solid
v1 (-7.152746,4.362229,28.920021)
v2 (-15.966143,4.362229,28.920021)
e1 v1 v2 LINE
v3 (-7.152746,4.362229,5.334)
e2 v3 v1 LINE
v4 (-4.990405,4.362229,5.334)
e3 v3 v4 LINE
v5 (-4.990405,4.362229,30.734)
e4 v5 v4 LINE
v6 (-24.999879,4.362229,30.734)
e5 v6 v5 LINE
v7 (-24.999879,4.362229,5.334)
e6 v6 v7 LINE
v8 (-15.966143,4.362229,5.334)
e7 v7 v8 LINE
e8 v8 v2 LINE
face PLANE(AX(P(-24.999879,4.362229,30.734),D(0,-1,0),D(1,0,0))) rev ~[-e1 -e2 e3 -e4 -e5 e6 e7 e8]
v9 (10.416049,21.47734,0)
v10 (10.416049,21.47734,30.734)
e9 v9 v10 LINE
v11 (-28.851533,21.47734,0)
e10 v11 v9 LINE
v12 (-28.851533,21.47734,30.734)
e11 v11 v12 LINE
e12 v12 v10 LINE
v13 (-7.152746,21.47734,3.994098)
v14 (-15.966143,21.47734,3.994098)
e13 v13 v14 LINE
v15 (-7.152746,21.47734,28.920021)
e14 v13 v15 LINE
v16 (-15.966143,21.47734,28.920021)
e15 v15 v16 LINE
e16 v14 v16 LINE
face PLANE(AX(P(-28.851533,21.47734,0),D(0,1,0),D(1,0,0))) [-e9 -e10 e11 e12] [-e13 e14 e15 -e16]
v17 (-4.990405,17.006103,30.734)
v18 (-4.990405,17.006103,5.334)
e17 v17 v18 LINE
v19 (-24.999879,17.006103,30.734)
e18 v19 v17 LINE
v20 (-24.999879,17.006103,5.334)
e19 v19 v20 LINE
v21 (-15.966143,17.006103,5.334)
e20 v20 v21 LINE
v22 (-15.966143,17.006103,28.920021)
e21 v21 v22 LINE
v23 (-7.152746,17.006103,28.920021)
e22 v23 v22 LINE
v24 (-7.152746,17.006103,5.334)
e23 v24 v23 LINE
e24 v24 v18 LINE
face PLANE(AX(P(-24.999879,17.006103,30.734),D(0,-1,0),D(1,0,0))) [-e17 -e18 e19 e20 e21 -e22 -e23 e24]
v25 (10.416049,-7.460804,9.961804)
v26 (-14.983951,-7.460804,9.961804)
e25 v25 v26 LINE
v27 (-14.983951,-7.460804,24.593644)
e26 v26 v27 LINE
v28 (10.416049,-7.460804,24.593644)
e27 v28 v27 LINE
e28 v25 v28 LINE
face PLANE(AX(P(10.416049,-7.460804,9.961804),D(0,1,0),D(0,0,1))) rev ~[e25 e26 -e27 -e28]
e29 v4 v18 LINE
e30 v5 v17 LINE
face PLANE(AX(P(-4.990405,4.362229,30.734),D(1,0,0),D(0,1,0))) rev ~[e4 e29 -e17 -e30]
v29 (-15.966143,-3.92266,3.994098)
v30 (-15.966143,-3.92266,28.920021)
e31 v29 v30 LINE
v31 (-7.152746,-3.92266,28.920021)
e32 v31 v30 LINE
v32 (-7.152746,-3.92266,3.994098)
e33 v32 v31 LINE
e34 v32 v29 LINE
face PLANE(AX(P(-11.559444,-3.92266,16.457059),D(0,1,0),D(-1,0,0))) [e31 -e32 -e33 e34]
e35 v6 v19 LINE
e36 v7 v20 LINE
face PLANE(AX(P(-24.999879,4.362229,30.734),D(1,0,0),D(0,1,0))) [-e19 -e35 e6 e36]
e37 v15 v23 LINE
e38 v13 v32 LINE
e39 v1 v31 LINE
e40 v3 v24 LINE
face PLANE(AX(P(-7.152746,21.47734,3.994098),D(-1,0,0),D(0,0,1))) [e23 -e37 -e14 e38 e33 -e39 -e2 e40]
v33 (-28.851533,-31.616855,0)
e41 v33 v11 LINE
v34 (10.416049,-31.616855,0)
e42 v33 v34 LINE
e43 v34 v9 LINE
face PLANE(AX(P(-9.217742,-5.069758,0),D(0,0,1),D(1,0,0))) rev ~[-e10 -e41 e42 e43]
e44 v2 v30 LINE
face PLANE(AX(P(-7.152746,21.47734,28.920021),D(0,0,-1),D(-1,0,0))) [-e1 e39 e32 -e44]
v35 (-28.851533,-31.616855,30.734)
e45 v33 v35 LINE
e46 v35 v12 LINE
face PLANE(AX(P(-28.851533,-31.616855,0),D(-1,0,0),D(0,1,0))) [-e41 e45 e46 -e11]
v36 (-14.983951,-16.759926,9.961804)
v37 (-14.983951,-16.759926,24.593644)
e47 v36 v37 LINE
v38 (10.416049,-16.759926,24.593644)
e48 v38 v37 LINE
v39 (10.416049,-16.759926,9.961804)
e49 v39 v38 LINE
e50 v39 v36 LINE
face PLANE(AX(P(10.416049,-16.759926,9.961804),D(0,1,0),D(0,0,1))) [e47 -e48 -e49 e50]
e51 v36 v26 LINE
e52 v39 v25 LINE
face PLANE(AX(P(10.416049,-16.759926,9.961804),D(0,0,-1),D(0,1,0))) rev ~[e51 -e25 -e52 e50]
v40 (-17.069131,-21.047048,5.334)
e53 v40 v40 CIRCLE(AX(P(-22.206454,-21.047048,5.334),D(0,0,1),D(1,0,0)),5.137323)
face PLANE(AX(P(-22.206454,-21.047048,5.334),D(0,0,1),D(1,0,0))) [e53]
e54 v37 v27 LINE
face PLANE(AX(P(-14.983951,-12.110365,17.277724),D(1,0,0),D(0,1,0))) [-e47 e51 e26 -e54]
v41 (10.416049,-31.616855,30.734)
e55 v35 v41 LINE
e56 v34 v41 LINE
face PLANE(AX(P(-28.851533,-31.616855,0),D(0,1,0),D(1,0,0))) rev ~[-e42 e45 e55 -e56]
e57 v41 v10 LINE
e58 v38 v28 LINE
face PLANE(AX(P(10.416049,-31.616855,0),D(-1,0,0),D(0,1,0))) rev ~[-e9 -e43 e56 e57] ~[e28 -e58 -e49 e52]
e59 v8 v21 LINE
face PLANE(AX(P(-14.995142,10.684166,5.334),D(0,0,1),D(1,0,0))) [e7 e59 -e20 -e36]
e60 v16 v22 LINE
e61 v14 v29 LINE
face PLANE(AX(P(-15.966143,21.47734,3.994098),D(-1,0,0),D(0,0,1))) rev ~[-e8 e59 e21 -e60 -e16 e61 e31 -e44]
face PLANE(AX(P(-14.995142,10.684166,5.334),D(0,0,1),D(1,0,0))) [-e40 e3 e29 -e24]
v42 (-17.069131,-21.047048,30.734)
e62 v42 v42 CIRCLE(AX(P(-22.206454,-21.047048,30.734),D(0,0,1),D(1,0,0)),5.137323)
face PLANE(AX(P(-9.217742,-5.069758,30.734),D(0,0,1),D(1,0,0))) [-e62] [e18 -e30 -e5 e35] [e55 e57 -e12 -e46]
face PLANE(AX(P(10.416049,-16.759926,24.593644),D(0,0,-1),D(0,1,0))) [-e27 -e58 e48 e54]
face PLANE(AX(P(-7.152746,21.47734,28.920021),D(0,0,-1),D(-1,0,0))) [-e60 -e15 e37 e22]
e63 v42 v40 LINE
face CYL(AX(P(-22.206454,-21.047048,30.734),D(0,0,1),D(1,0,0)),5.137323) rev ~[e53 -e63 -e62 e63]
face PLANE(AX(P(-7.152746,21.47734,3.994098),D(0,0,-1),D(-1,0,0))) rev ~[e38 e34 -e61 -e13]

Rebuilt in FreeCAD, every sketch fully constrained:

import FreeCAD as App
import Part
import Sketcher
Q = App.Units.Quantity

doc = App.newDocument("Part")
body = doc.addObject("PartDesign::Body", "Body")

# Sketch on XY plane
sketch1 = body.newObject("Sketcher::SketchObject", "Sketch")
sketch1.AttachmentSupport = (doc.getObject("XY_Plane"), [""])
sketch1.MapMode = "FlatFace"
sketch1.addGeometry(Part.LineSegment(App.Vector(-29, 21, 0), App.Vector(-29, -32, 0)), False)
sketch1.addGeometry(Part.LineSegment(App.Vector(-29, -32, 0), App.Vector(10, -32, 0)), False)
sketch1.addGeometry(Part.LineSegment(App.Vector(10, -32, 0), App.Vector(10, 21, 0)), False)
sketch1.addGeometry(Part.LineSegment(App.Vector(10, 21, 0), App.Vector(-29, 21, 0)), False)
sketch1.addConstraint(Sketcher.Constraint("Coincident", 0, 2, 1, 1))
sketch1.addConstraint(Sketcher.Constraint("Coincident", 1, 2, 2, 1))
sketch1.addConstraint(Sketcher.Constraint("Coincident", 2, 2, 3, 1))
sketch1.addConstraint(Sketcher.Constraint("Coincident", 3, 2, 0, 1))
sketch1.addConstraint(Sketcher.Constraint("Vertical", 0))
sketch1.addConstraint(Sketcher.Constraint("Horizontal", 1))
sketch1.addConstraint(Sketcher.Constraint("Vertical", 2))
sketch1.addConstraint(Sketcher.Constraint("Horizontal", 3))
sketch1.addConstraint(Sketcher.Constraint("DistanceX", 1, 1, 1, 2, Q("39.267582 mm")))
sketch1.addConstraint(Sketcher.Constraint("DistanceY", 0, 2, 0, 1, Q("53.094195 mm")))
sketch1.addConstraint(Sketcher.Constraint("DistanceX", -1, 1, 1, 2, Q("10.416049 mm")))
sketch1.addConstraint(Sketcher.Constraint("DistanceY", -1, 1, 2, 2, Q("21.47734 mm")))
pad1 = body.newObject("PartDesign::Pad", "Pad")
pad1.Profile = sketch1
pad1.Length = Q("1.21 in")

# Sketch on XZ plane
sketch2 = body.newObject("Sketcher::SketchObject", "Sketch001")
sketch2.AttachmentSupport = (doc.getObject("XZ_Plane"), [""])
sketch2.MapMode = "FlatFace"
sketch2.AttachmentOffset = App.Placement(App.Vector(0, 0, -21.47734), App.Rotation())
sketch2.addGeometry(Part.Circle(App.Vector(0, 22, 0), App.Vector(0, 0, 1), 6), False)
sketch2.addConstraint(Sketcher.Constraint("PointOnObject", 0, 3, -2))
sketch2.addConstraint(Sketcher.Constraint("Diameter", 0, Q("11.806739 mm")))
sketch2.addConstraint(Sketcher.Constraint("DistanceY", -1, 1, 0, 3, Q("21.755928 mm")))
pad2 = body.newObject("PartDesign::Pad", "Pad001")
pad2.Profile = sketch2
pad2.Length = Q("1.36 in")

# Sketch on XZ plane
sketch3 = body.newObject("Sketcher::SketchObject", "Sketch002")
sketch3.AttachmentSupport = (doc.getObject("XZ_Plane"), [""])
sketch3.MapMode = "FlatFace"
sketch3.AttachmentOffset = App.Placement(App.Vector(0, 0, -21.47734), App.Rotation())
sketch3.addGeometry(Part.Circle(App.Vector(0, 18, 0), App.Vector(0, 0, 1), 7), False)
sketch3.addConstraint(Sketcher.Constraint("PointOnObject", 0, 3, -2))
sketch3.addConstraint(Sketcher.Constraint("Diameter", 0, Q("13.873313 mm")))
sketch3.addConstraint(Sketcher.Constraint("DistanceY", -1, 1, 0, 3, Q("17.772553 mm")))
pad3 = body.newObject("PartDesign::Pad", "Pad002")
pad3.Profile = sketch3
pad3.Length = Q("1.15 in")

# Sketch on XY plane
sketch4 = body.newObject("Sketcher::SketchObject", "Sketch003")
sketch4.AttachmentSupport = (doc.getObject("XY_Plane"), [""])
sketch4.MapMode = "FlatFace"
sketch4.AttachmentOffset = App.Placement(App.Vector(0, 0, 1.21 * 25.4), App.Rotation())
sketch4.addGeometry(Part.Circle(App.Vector(-22, -21, 0), App.Vector(0, 0, 1), 5), False)
sketch4.addConstraint(Sketcher.Constraint("Diameter", 0, Q("10.274645 mm")))
sketch4.addConstraint(Sketcher.Constraint("DistanceY", 0, 3, -1, 1, Q("21.047048 mm")))
sketch4.addConstraint(Sketcher.Constraint("DistanceX", 0, 3, -1, 1, Q("22.206454 mm")))
pocket1 = body.newObject("PartDesign::Pocket", "Pocket")
pocket1.Profile = sketch4
pocket1.Length = Q("1 in")

# Sketch on YZ plane
sketch5 = body.newObject("Sketcher::SketchObject", "Sketch004")
sketch5.AttachmentSupport = (doc.getObject("YZ_Plane"), [""])
sketch5.MapMode = "FlatFace"
sketch5.AttachmentOffset = App.Placement(App.Vector(0, 0, 10.416049), App.Rotation())
sketch5.addGeometry(Part.LineSegment(App.Vector(-17, 25, 0), App.Vector(-17, 10, 0)), False)
sketch5.addGeometry(Part.LineSegment(App.Vector(-17, 10, 0), App.Vector(-7, 10, 0)), False)
sketch5.addGeometry(Part.LineSegment(App.Vector(-7, 10, 0), App.Vector(-7, 25, 0)), False)
sketch5.addGeometry(Part.LineSegment(App.Vector(-7, 25, 0), App.Vector(-17, 25, 0)), False)
sketch5.addConstraint(Sketcher.Constraint("Coincident", 0, 2, 1, 1))
sketch5.addConstraint(Sketcher.Constraint("Coincident", 1, 2, 2, 1))
sketch5.addConstraint(Sketcher.Constraint("Coincident", 2, 2, 3, 1))
sketch5.addConstraint(Sketcher.Constraint("Coincident", 3, 2, 0, 1))
sketch5.addConstraint(Sketcher.Constraint("Vertical", 0))
sketch5.addConstraint(Sketcher.Constraint("Horizontal", 1))
sketch5.addConstraint(Sketcher.Constraint("Vertical", 2))
sketch5.addConstraint(Sketcher.Constraint("Horizontal", 3))
sketch5.addConstraint(Sketcher.Constraint("DistanceY", 0, 2, 0, 1, Q("14.631839 mm")))
sketch5.addConstraint(Sketcher.Constraint("DistanceX", 1, 1, 1, 2, Q("9.299122 mm")))
sketch5.addConstraint(Sketcher.Constraint("DistanceX", 0, 2, -1, 1, Q("16.759926 mm")))
sketch5.addConstraint(Sketcher.Constraint("DistanceY", -1, 1, 0, 2, Q("9.961804 mm")))
pocket2 = body.newObject("PartDesign::Pocket", "Pocket001")
pocket2.Profile = sketch5
pocket2.Length = Q("1 in")

# Sketch on XZ plane
sketch6 = body.newObject("Sketcher::SketchObject", "Sketch005")
sketch6.AttachmentSupport = (doc.getObject("XZ_Plane"), [""])
sketch6.MapMode = "FlatFace"
sketch6.AttachmentOffset = App.Placement(App.Vector(0, 0, -21.47734), App.Rotation())
sketch6.addGeometry(Part.LineSegment(App.Vector(-7, 29, 0), App.Vector(-7, 4, 0)), False)
sketch6.addGeometry(Part.LineSegment(App.Vector(-7, 4, 0), App.Vector(-16, 4, 0)), False)
sketch6.addGeometry(Part.LineSegment(App.Vector(-16, 4, 0), App.Vector(-16, 29, 0)), False)
sketch6.addGeometry(Part.LineSegment(App.Vector(-16, 29, 0), App.Vector(-7, 29, 0)), False)
sketch6.addConstraint(Sketcher.Constraint("Coincident", 0, 2, 1, 1))
sketch6.addConstraint(Sketcher.Constraint("Coincident", 1, 2, 2, 1))
sketch6.addConstraint(Sketcher.Constraint("Coincident", 2, 2, 3, 1))
sketch6.addConstraint(Sketcher.Constraint("Coincident", 3, 2, 0, 1))
sketch6.addConstraint(Sketcher.Constraint("Vertical", 0))
sketch6.addConstraint(Sketcher.Constraint("Horizontal", 1))
sketch6.addConstraint(Sketcher.Constraint("Vertical", 2))
sketch6.addConstraint(Sketcher.Constraint("Horizontal", 3))
sketch6.addConstraint(Sketcher.Constraint("DistanceX", 1, 2, 1, 1, Q("8.813398 mm")))
sketch6.addConstraint(Sketcher.Constraint("DistanceY", 0, 2, 0, 1, Q("24.925923 mm")))
sketch6.addConstraint(Sketcher.Constraint("DistanceY", -1, 1, 2, 2, Q("28.920021 mm")))
sketch6.addConstraint(Sketcher.Constraint("DistanceX", 0, 2, -1, 1, Q("7.152745 mm")))
pocket3 = body.newObject("PartDesign::Pocket", "Pocket002")
pocket3.Profile = sketch6
pocket3.Length = Q("1 in")
pocket3.Reversed = True

# Sketch on XY plane
sketch7 = body.newObject("Sketcher::SketchObject", "Sketch006")
sketch7.AttachmentSupport = (doc.getObject("XY_Plane"), [""])
sketch7.MapMode = "FlatFace"
sketch7.AttachmentOffset = App.Placement(App.Vector(0, 0, 1.21 * 25.4), App.Rotation())
sketch7.addGeometry(Part.LineSegment(App.Vector(-25, 17, 0), App.Vector(-25, 4, 0)), False)
sketch7.addGeometry(Part.LineSegment(App.Vector(-25, 4, 0), App.Vector(-5, 4, 0)), False)
sketch7.addGeometry(Part.LineSegment(App.Vector(-5, 4, 0), App.Vector(-5, 17, 0)), False)
sketch7.addGeometry(Part.LineSegment(App.Vector(-5, 17, 0), App.Vector(-25, 17, 0)), False)
sketch7.addConstraint(Sketcher.Constraint("Coincident", 0, 2, 1, 1))
sketch7.addConstraint(Sketcher.Constraint("Coincident", 1, 2, 2, 1))
sketch7.addConstraint(Sketcher.Constraint("Coincident", 2, 2, 3, 1))
sketch7.addConstraint(Sketcher.Constraint("Coincident", 3, 2, 0, 1))
sketch7.addConstraint(Sketcher.Constraint("Vertical", 0))
sketch7.addConstraint(Sketcher.Constraint("Horizontal", 1))
sketch7.addConstraint(Sketcher.Constraint("Vertical", 2))
sketch7.addConstraint(Sketcher.Constraint("Horizontal", 3))
sketch7.addConstraint(Sketcher.Constraint("DistanceX", 1, 1, 1, 2, Q("20.009474 mm")))
sketch7.addConstraint(Sketcher.Constraint("DistanceY", 0, 2, 0, 1, Q("12.643874 mm")))
sketch7.addConstraint(Sketcher.Constraint("DistanceX", 0, 2, -1, 1, Q("24.999879 mm")))
sketch7.addConstraint(Sketcher.Constraint("DistanceY", -1, 1, 0, 2, Q("4.362229 mm")))
pocket4 = body.newObject("PartDesign::Pocket", "Pocket003")
pocket4.Profile = sketch7
pocket4.Length = Q("1 in")

doc.recompute()
